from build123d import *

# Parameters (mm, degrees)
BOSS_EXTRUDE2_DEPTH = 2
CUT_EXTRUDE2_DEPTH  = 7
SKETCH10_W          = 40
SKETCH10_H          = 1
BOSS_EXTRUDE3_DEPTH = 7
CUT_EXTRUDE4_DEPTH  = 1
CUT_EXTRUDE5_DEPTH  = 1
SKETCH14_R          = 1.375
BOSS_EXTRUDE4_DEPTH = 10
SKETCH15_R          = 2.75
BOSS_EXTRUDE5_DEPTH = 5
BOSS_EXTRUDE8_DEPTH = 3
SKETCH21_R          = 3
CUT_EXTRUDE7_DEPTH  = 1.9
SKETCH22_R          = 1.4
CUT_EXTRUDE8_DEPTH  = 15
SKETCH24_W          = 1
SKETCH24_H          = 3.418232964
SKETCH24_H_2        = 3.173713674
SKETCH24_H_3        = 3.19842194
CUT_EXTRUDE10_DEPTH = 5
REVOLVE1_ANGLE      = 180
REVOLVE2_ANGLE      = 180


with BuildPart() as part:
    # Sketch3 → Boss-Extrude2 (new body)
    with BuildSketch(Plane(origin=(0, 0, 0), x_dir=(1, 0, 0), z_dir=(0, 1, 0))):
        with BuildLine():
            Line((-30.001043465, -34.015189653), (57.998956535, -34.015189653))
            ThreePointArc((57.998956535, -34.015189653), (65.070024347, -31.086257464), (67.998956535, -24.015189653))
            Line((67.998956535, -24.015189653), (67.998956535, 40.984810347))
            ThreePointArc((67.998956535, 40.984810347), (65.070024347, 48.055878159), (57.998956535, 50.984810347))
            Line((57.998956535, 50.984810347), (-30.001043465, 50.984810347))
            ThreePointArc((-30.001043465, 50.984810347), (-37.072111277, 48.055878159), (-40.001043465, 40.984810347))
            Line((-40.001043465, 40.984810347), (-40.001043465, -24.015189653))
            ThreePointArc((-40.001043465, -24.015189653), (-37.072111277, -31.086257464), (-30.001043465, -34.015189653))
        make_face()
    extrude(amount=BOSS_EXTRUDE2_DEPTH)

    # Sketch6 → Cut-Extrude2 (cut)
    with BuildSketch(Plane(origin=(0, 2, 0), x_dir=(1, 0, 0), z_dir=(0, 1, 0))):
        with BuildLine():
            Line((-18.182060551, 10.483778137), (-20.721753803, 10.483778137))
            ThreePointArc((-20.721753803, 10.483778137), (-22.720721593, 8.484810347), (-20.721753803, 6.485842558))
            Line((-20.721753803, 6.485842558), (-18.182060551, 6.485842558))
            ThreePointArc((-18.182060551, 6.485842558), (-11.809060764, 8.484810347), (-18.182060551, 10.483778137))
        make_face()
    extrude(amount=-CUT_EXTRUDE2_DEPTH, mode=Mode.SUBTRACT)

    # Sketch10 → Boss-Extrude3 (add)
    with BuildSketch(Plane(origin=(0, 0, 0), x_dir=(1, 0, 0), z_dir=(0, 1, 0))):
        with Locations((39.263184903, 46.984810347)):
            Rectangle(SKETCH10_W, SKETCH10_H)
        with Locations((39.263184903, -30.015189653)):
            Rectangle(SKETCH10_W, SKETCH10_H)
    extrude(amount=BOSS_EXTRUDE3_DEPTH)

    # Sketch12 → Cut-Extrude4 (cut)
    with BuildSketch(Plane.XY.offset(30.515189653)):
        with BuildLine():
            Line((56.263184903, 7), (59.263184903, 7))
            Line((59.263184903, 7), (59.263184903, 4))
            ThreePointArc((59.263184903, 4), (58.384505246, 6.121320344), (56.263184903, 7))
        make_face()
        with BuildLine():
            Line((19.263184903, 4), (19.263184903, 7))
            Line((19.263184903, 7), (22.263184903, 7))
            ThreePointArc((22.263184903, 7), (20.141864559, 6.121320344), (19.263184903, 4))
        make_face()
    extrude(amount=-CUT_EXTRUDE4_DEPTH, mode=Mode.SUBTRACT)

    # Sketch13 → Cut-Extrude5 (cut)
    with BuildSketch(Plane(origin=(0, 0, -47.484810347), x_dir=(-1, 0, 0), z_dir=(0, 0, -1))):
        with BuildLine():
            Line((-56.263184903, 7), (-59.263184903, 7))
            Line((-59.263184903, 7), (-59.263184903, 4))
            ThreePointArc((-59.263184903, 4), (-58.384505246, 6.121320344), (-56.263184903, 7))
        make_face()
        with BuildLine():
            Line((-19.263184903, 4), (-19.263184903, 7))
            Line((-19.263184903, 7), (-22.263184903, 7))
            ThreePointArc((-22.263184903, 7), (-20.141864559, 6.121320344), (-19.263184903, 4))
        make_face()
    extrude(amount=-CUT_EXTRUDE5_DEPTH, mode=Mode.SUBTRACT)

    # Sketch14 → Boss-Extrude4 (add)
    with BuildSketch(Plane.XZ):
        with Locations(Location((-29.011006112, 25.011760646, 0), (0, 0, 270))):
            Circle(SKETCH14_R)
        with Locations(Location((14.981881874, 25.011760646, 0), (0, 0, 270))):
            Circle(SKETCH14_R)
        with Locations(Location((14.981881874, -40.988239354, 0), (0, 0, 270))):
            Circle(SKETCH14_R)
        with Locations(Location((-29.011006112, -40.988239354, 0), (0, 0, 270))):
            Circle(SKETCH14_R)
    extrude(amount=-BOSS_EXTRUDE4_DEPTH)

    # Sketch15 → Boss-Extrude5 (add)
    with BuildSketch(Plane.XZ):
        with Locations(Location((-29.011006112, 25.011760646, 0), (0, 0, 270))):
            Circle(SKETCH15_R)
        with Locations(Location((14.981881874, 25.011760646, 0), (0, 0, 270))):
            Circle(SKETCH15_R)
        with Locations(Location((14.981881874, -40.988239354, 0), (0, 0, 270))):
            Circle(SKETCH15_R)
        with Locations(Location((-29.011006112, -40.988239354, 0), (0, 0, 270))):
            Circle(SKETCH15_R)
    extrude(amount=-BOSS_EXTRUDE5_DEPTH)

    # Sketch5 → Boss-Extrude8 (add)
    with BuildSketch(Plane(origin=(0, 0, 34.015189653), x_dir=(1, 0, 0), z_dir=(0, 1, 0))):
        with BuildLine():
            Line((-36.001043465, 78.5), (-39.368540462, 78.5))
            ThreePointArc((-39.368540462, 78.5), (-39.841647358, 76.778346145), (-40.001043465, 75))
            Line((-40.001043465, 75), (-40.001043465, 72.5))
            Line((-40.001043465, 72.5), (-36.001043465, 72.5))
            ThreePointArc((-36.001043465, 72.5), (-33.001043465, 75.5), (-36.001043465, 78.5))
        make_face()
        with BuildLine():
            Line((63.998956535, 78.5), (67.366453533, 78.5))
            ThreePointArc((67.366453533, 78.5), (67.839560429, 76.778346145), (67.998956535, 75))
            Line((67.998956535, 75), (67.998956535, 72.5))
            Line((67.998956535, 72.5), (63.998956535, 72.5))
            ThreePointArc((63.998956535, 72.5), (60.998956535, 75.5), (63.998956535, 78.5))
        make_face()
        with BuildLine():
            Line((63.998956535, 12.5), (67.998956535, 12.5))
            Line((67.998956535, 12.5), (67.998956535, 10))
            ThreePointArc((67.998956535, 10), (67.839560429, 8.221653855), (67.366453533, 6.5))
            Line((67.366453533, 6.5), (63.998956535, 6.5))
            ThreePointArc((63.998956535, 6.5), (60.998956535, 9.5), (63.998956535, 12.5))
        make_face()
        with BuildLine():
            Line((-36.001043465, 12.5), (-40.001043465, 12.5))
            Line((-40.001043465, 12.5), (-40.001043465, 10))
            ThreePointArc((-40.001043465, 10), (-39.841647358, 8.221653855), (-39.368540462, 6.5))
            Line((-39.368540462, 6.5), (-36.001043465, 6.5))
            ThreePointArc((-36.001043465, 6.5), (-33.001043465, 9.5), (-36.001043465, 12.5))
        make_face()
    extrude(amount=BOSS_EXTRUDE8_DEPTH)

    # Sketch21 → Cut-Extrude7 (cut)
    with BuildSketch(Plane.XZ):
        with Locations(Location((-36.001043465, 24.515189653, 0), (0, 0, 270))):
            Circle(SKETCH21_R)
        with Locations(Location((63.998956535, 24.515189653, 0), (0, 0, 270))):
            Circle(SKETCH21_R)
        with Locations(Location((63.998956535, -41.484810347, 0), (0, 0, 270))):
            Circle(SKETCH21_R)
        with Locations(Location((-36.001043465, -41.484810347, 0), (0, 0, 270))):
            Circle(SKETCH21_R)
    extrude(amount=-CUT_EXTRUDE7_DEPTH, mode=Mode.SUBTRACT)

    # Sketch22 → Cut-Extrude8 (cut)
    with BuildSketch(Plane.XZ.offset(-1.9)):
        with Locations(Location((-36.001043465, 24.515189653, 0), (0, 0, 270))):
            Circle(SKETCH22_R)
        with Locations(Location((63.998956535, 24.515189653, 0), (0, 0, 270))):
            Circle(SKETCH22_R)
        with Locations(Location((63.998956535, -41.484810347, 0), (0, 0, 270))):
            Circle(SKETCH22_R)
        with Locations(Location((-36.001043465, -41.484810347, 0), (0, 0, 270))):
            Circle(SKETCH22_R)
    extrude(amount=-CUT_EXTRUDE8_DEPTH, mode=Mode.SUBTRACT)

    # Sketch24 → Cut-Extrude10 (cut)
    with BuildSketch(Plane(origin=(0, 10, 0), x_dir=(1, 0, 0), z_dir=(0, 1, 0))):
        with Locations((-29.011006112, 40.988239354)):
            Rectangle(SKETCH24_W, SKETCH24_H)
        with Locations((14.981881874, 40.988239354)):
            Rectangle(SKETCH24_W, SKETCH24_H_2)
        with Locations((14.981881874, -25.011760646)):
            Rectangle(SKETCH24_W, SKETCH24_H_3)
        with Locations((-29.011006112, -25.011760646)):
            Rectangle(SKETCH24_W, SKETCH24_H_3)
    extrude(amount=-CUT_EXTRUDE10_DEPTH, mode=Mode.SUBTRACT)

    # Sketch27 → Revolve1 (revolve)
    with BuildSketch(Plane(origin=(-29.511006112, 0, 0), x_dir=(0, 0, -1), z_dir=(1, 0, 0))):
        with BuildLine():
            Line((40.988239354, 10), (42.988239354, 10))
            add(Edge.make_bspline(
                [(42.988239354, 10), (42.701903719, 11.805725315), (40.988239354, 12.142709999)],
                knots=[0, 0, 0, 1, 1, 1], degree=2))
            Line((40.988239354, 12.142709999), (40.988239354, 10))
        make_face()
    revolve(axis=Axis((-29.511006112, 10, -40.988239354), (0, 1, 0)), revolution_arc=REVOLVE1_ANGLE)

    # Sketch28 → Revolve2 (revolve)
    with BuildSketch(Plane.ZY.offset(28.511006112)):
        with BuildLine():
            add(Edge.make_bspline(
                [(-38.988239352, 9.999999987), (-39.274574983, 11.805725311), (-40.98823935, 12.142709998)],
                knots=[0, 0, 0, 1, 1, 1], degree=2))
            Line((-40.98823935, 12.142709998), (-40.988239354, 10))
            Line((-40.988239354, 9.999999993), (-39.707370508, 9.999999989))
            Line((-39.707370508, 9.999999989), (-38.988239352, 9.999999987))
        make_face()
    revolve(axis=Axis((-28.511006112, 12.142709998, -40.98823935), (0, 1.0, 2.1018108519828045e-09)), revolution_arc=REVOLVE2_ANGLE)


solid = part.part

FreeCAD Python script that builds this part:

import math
import FreeCAD as App
import Part
import Sketcher
from FreeCAD import Vector
Q = App.Units.Quantity


def add_polygon(sketch, points):
    """Adds a closed chain of lines whose ends are joined by coincident constraints."""
    first, n = sketch.GeometryCount, len(points)
    for a, b in zip(points, points[1:] + points[:1]):
        sketch.addGeometry(Part.LineSegment(App.Vector(*a, 0), App.Vector(*b, 0)), False)
    for i in range(n):
        sketch.addConstraint(Sketcher.Constraint("Coincident", first + i, 2, first + (i + 1) % n, 1))

doc = App.newDocument("Part")
params = doc.addObject("Spreadsheet::Sheet", "Params")
for row, (alias, value) in enumerate([
    ("sketch1_radius", "10 mm"),
    ("sketch1_width", "88 mm"),
    ("sketch1_height", "65 mm"),
    ("pad1_length", "2 mm"),
    ("sketch2_radius", "3.5 mm"),
    ("pocket1_length", "7 mm"),
    ("sketch3_width", "40 mm"),
    ("sketch3_height", "1 mm"),
    ("pad2_length", "7 mm"),
    ("sketch4_radius", "3 mm"),
    ("pocket2_length", "1 mm"),
    ("sketch5_radius", "3 mm"),
    ("pocket3_length", "1 mm"),
    ("sketch6_diameter", "2.75 mm"),
    ("pad3_length", "10 mm"),
    ("sketch7_diameter", "5.5 mm"),
    ("pad4_length", "5 mm"),
    ("sketch8_radius", "10 mm"),
    ("sketch8_radius2", "3 mm"),
    ("sketch8_width", "4 mm"),
    ("sketch8_height", "2.5 mm"),
    ("pad5_length", "3 mm"),
    ("sketch9_diameter", "6 mm"),
    ("pocket4_length", "1.9 mm"),
    ("sketch10_diameter", "2.8 mm"),
    ("pocket5_length", "15 mm"),
    ("sketch11_width", "1 mm"),
    ("pocket6_length", "5 mm"),
    ("revolution_angle", "180 deg"),
    ("revolution2_angle", "180 deg"),
], start=1):
    params.set(f"A{row}", alias)
    params.set(f"B{row}", "=" + value)
    params.setAlias(f"B{row}", alias)

body = doc.addObject("PartDesign::Body", "Body")

sketch1 = body.newObject("Sketcher::SketchObject", "Sketch")
sketch1.AttachmentSupport = (doc.getObject("XZ_Plane"), [""])
sketch1.MapMode = "FlatFace"
sketch1.addGeometry([
    Part.LineSegment(Vector(-30, 34, 0), Vector(58, 34, 0)),
    Part.ArcOfCircle(Part.Circle(Vector(58, 24, 0), Vector(0, 0, 1), 10), math.radians(0), math.radians(90)),
    Part.LineSegment(Vector(68, 24, 0), Vector(68, -41, 0)),
    Part.ArcOfCircle(Part.Circle(Vector(58, -41, 0), Vector(0, 0, 1), 10), math.radians(-90), math.radians(0)),
    Part.LineSegment(Vector(58, -51, 0), Vector(-30, -51, 0)),
    Part.ArcOfCircle(Part.Circle(Vector(-30, -41, 0), Vector(0, 0, 1), 10), math.radians(180), math.radians(270)),
    Part.LineSegment(Vector(-40, -41, 0), Vector(-40, 24, 0)),
    Part.ArcOfCircle(Part.Circle(Vector(-30, 24, 0), Vector(0, 0, 1), 10), math.radians(90), math.radians(180)),
], False)
sketch1.addConstraint([
    Sketcher.Constraint("Tangent", 0, 2, 1, 2),
    Sketcher.Constraint("Tangent", 1, 1, 2, 1),
    Sketcher.Constraint("Tangent", 2, 2, 3, 2),
    Sketcher.Constraint("Tangent", 3, 1, 4, 1),
    Sketcher.Constraint("Tangent", 4, 2, 5, 2),
    Sketcher.Constraint("Tangent", 5, 1, 6, 1),
    Sketcher.Constraint("Tangent", 6, 2, 7, 2),
    Sketcher.Constraint("Tangent", 7, 1, 0, 1),
    Sketcher.Constraint("Horizontal", 0),
    Sketcher.Constraint("Vertical", 2),
    Sketcher.Constraint("Horizontal", 4),
    Sketcher.Constraint("Vertical", 6),
    Sketcher.Constraint("Equal", 1, 3),
    Sketcher.Constraint("Equal", 3, 5),
    Sketcher.Constraint("Equal", 5, 7),
    Sketcher.Constraint("Radius", 1, Q("10 mm")),
    Sketcher.Constraint("DistanceX", 0, 1, 0, 2, Q("88 mm")),
    Sketcher.Constraint("DistanceY", 2, 2, 2, 1, Q("65 mm")),
    Sketcher.Constraint("DistanceY", -1, 1, 1, 3, Q("24.01519 mm")),
    Sketcher.Constraint("DistanceX", -1, 1, 1, 3, Q("57.998957 mm")),
])
sketch1.setExpression("Constraints[15]", "Params.sketch1_radius")
sketch1.setExpression("Constraints[16]", "Params.sketch1_width")
sketch1.setExpression("Constraints[17]", "Params.sketch1_height")
pad1 = body.newObject("PartDesign::Pad", "Pad")
pad1.Profile = sketch1
pad1.setExpression("Length", "Params.pad1_length")
pad1.Reversed = True

sketch2 = body.newObject("Sketcher::SketchObject", "Sketch001")
sketch2.AttachmentSupport = (doc.getObject("XZ_Plane"), [""])
sketch2.MapMode = "FlatFace"
sketch2.AttachmentOffset = App.Placement(Vector(0, 0, -2), App.Rotation())
sketch2.addGeometry([
    Part.LineSegment(Vector(-18.2, -10.5, 0), Vector(-20.7, -10.5, 0)),
    Part.ArcOfCircle(Part.Circle(Vector(-20.7, -8.5, 0), Vector(0, 0, 1), 2), math.radians(90), math.radians(270)),
    Part.LineSegment(Vector(-20.7, -6.5, 0), Vector(-18.2, -6.5, 0)),
    Part.ArcOfCircle(Part.Circle(Vector(-15.3, -8.5, 0), Vector(0, 0, 1), 3.5), math.radians(-145), math.radians(145)),
], False)
sketch2.addConstraint([
    Sketcher.Constraint("Tangent", 0, 2, 1, 2),
    Sketcher.Constraint("Tangent", 1, 1, 2, 1),
    Sketcher.Constraint("Coincident", 2, 2, 3, 2),
    Sketcher.Constraint("Coincident", 3, 1, 0, 1),
    Sketcher.Constraint("Horizontal", 0),
    Sketcher.Constraint("Horizontal", 2),
    Sketcher.Constraint("Horizontal", 1, 3, 3, 3),
    Sketcher.Constraint("Radius", 3, Q("3.5 mm")),
    Sketcher.Constraint("Radius", 1, Q("1.998968 mm")),
    Sketcher.Constraint("DistanceX", 0, 2, 0, 1, Q("2.539693 mm")),
    Sketcher.Constraint("DistanceY", 1, 3, -1, 1, Q("8.48481 mm")),
    Sketcher.Constraint("DistanceX", 3, 3, -1, 1, Q("15.309061 mm")),
])
sketch2.setExpression("Constraints[7]", "Params.sketch2_radius")
pocket1 = body.newObject("PartDesign::Pocket", "Pocket")
pocket1.Profile = sketch2
pocket1.setExpression("Length", "Params.pocket1_length")
pocket1.Reversed = True

sketch3 = body.newObject("Sketcher::SketchObject", "Sketch002")
sketch3.AttachmentSupport = (doc.getObject("XZ_Plane"), [""])
sketch3.MapMode = "FlatFace"
add_polygon(sketch3, [(19.3, -47.5), (19.3, -46.5), (59.3, -46.5), (59.3, -47.5)])
add_polygon(sketch3, [(19.3, 29.5), (19.3, 30.5), (59.3, 30.5), (59.3, 29.5)])
sketch3.addConstraint([
    Sketcher.Constraint("Vertical", 0),
    Sketcher.Constraint("Horizontal", 1),
    Sketcher.Constraint("Vertical", 2),
    Sketcher.Constraint("Horizontal", 3),
    Sketcher.Constraint("Vertical", 4),
    Sketcher.Constraint("Horizontal", 5),
    Sketcher.Constraint("Vertical", 6),
    Sketcher.Constraint("Horizontal", 7),
    Sketcher.Constraint("Vertical", 3, 2, 4, 2),
    Sketcher.Constraint("Vertical", 2, 2, 5, 2),
    Sketcher.Constraint("Equal", 2, 4),
    Sketcher.Constraint("DistanceX", 1, 1, 1, 2, Q("40 mm")),
    Sketcher.Constraint("DistanceY", 0, 1, 0, 2, Q("1 mm")),
    Sketcher.Constraint("DistanceY", 0, 2, 4, 2, Q("77 mm")),
    Sketcher.Constraint("DistanceY", 0, 2, -1, 1, Q("46.48481 mm")),
    Sketcher.Constraint("DistanceX", -1, 1, 0, 2, Q("19.263185 mm")),
])
sketch3.setExpression("Constraints[19]", "Params.sketch3_width")
sketch3.setExpression("Constraints[20]", "Params.sketch3_height")
pad2 = body.newObject("PartDesign::Pad", "Pad001")
pad2.Profile = sketch3
pad2.setExpression("Length", "Params.pad2_length")
pad2.Reversed = True

sketch4 = body.newObject("Sketcher::SketchObject", "Sketch003")
sketch4.AttachmentSupport = (doc.getObject("XY_Plane"), [""])
sketch4.MapMode = "FlatFace"
sketch4.AttachmentOffset = App.Placement(Vector(0, 0, 30.51519), App.Rotation())
sketch4.addGeometry([
    Part.LineSegment(Vector(59.3, 7, 0), Vector(56.3, 7, 0)),
    Part.ArcOfCircle(Part.Circle(Vector(56.3, 4, 0), Vector(0, 0, 1), 3), math.radians(0), math.radians(90)),
    Part.LineSegment(Vector(59.3, 4, 0), Vector(59.3, 7, 0)),
    Part.LineSegment(Vector(19.3, 7, 0), Vector(19.3, 4, 0)),
    Part.ArcOfCircle(Part.Circle(Vector(22.3, 4, 0), Vector(0, 0, 1), 3), math.radians(90), math.radians(180)),
    Part.LineSegment(Vector(22.3, 7, 0), Vector(19.3, 7, 0)),
], False)
sketch4.addConstraint([
    Sketcher.Constraint("Tangent", 0, 2, 1, 2),
    Sketcher.Constraint("Tangent", 1, 1, 2, 1),
    Sketcher.Constraint("Coincident", 2, 2, 0, 1),
    Sketcher.Constraint("Tangent", 3, 2, 4, 2),
    Sketcher.Constraint("Tangent", 4, 1, 5, 1),
    Sketcher.Constraint("Coincident", 5, 2, 3, 1),
    Sketcher.Constraint("Horizontal", 0),
    Sketcher.Constraint("Vertical", 2),
    Sketcher.Constraint("Vertical", 3),
    Sketcher.Constraint("Horizontal", 5),
    Sketcher.Constraint("Equal", 1, 4),
    Sketcher.Constraint("Horizontal", 1, 3, 4, 3),
    Sketcher.Constraint("Radius", 1, Q("3 mm")),
    Sketcher.Constraint("DistanceY", -1, 1, 1, 3, Q("4 mm")),
    Sketcher.Constraint("DistanceX", 4, 3, 1, 3, Q("34 mm")),
    Sketcher.Constraint("DistanceX", -1, 1, 1, 3, Q("56.263185 mm")),
])
sketch4.setExpression("Constraints[12]", "Params.sketch4_radius")
pocket2 = body.newObject("PartDesign::Pocket", "Pocket001")
pocket2.Profile = sketch4
pocket2.setExpression("Length", "Params.pocket2_length")

sketch5 = body.newObject("Sketcher::SketchObject", "Sketch004")
sketch5.AttachmentSupport = (doc.getObject("XY_Plane"), [""])
sketch5.MapMode = "FlatFace"
sketch5.AttachmentOffset = App.Placement(Vector(0, 0, -47.48481), App.Rotation())
sketch5.addGeometry([
    Part.LineSegment(Vector(56.3, 7, 0), Vector(59.3, 7, 0)),
    Part.LineSegment(Vector(59.3, 7, 0), Vector(59.3, 4, 0)),
    Part.ArcOfCircle(Part.Circle(Vector(56.3, 4, 0), Vector(0, 0, 1), 3), math.radians(0), math.radians(90)),
    Part.LineSegment(Vector(19.3, 4, 0), Vector(19.3, 7, 0)),
    Part.LineSegment(Vector(19.3, 7, 0), Vector(22.3, 7, 0)),
    Part.ArcOfCircle(Part.Circle(Vector(22.3, 4, 0), Vector(0, 0, 1), 3), math.radians(90), math.radians(180)),
], False)
sketch5.addConstraint([
    Sketcher.Constraint("Coincident", 0, 2, 1, 1),
    Sketcher.Constraint("Tangent", 1, 2, 2, 1),
    Sketcher.Constraint("Tangent", 2, 2, 0, 1),
    Sketcher.Constraint("Coincident", 3, 2, 4, 1),
    Sketcher.Constraint("Tangent", 4, 2, 5, 1),
    Sketcher.Constraint("Tangent", 5, 2, 3, 1),
    Sketcher.Constraint("Horizontal", 0),
    Sketcher.Constraint("Vertical", 1),
    Sketcher.Constraint("Vertical", 3),
    Sketcher.Constraint("Horizontal", 4),
    Sketcher.Constraint("Equal", 2, 5),
    Sketcher.Constraint("Horizontal", 2, 3, 5, 3),
    Sketcher.Constraint("Radius", 2, Q("3 mm")),
    Sketcher.Constraint("DistanceY", -1, 1, 2, 3, Q("4 mm")),
    Sketcher.Constraint("DistanceX", 5, 3, 2, 3, Q("34 mm")),
    Sketcher.Constraint("DistanceX", -1, 1, 2, 3, Q("56.263185 mm")),
])
sketch5.setExpression("Constraints[12]", "Params.sketch5_radius")
pocket3 = body.newObject("PartDesign::Pocket", "Pocket002")
pocket3.Profile = sketch5
pocket3.setExpression("Length", "Params.pocket3_length")
pocket3.Reversed = True

sketch6 = body.newObject("Sketcher::SketchObject", "Sketch005")
sketch6.AttachmentSupport = (doc.getObject("XZ_Plane"), [""])
sketch6.MapMode = "FlatFace"
sketch6.addGeometry([
    Part.Circle(Vector(-29, 25, 0), Vector(0, 0, 1), 1.4),
    Part.Circle(Vector(15, 25, 0), Vector(0, 0, 1), 1.4),
    Part.Circle(Vector(15, -41, 0), Vector(0, 0, 1), 1.4),
    Part.Circle(Vector(-29, -41, 0), Vector(0, 0, 1), 1.4),
], False)
sketch6.addConstraint([
    Sketcher.Constraint("Equal", 0, 1),
    Sketcher.Constraint("Equal", 1, 2),
    Sketcher.Constraint("Equal", 2, 3),
    Sketcher.Constraint("Horizontal", 0, 3, 1, 3),
    Sketcher.Constraint("Horizontal", 2, 3, 3, 3),
    Sketcher.Constraint("Vertical", 1, 3, 2, 3),
    Sketcher.Constraint("Vertical", 0, 3, 3, 3),
    Sketcher.Constraint("Diameter", 0, Q("2.75 mm")),
    Sketcher.Constraint("DistanceY", 2, 3, 1, 3, Q("66 mm")),
    Sketcher.Constraint("DistanceY", -1, 1, 0, 3, Q("25.011761 mm")),
    Sketcher.Constraint("DistanceX", -1, 1, 1, 3, Q("14.981882 mm")),
    Sketcher.Constraint("DistanceX", 0, 3, -1, 1, Q("29.011006 mm")),
])
sketch6.setExpression("Constraints[7]", "Params.sketch6_diameter")
pad3 = body.newObject("PartDesign::Pad", "Pad002")
pad3.Profile = sketch6
pad3.setExpression("Length", "Params.pad3_length")
pad3.Reversed = True

sketch7 = body.newObject("Sketcher::SketchObject", "Sketch006")
sketch7.AttachmentSupport = (doc.getObject("XZ_Plane"), [""])
sketch7.MapMode = "FlatFace"
sketch7.addGeometry([
    Part.Circle(Vector(-29, 25, 0), Vector(0, 0, 1), 2.8),
    Part.Circle(Vector(15, 25, 0), Vector(0, 0, 1), 2.8),
    Part.Circle(Vector(15, -41, 0), Vector(0, 0, 1), 2.8),
    Part.Circle(Vector(-29, -41, 0), Vector(0, 0, 1), 2.8),
], False)
sketch7.addConstraint([
    Sketcher.Constraint("Equal", 0, 1),
    Sketcher.Constraint("Equal", 1, 2),
    Sketcher.Constraint("Equal", 2, 3),
    Sketcher.Constraint("Horizontal", 0, 3, 1, 3),
    Sketcher.Constraint("Horizontal", 2, 3, 3, 3),
    Sketcher.Constraint("Vertical", 1, 3, 2, 3),
    Sketcher.Constraint("Vertical", 0, 3, 3, 3),
    Sketcher.Constraint("Diameter", 0, Q("5.5 mm")),
    Sketcher.Constraint("DistanceY", 2, 3, 1, 3, Q("66 mm")),
    Sketcher.Constraint("DistanceY", -1, 1, 0, 3, Q("25.011761 mm")),
    Sketcher.Constraint("DistanceX", -1, 1, 1, 3, Q("14.981882 mm")),
    Sketcher.Constraint("DistanceX", 0, 3, -1, 1, Q("29.011006 mm")),
])
sketch7.setExpression("Constraints[7]", "Params.sketch7_diameter")
pad4 = body.newObject("PartDesign::Pad", "Pad003")
pad4.Profile = sketch7
pad4.setExpression("Length", "Params.pad4_length")
pad4.Reversed = True

sketch8 = body.newObject("Sketcher::SketchObject", "Sketch007")
sketch8.AttachmentSupport = (doc.getObject("XZ_Plane"), [""])
sketch8.MapMode = "FlatFace"
sketch8.addGeometry([
    Part.LineSegment(Vector(-36, -44.5, 0), Vector(-39.4, -44.5, 0)),
    Part.ArcOfCircle(Part.Circle(Vector(-30, -41, 0), Vector(0, 0, 1), 10), math.radians(-180), math.radians(-160)),
    Part.LineSegment(Vector(-40, -41, 0), Vector(-40, -38.5, 0)),
    Part.LineSegment(Vector(-40, -38.5, 0), Vector(-36, -38.5, 0)),
    Part.ArcOfCircle(Part.Circle(Vector(-36, -41.5, 0), Vector(0, 0, 1), 3), math.radians(-90), math.radians(90)),
    Part.LineSegment(Vector(67.4, -44.5, 0), Vector(64, -44.5, 0)),
    Part.ArcOfCircle(Part.Circle(Vector(64, -41.5, 0), Vector(0, 0, 1), 3), math.radians(90), math.radians(270)),
    Part.LineSegment(Vector(64, -38.5, 0), Vector(68, -38.5, 0)),
    Part.LineSegment(Vector(68, -38.5, 0), Vector(68, -41, 0)),
    Part.ArcOfCircle(Part.Circle(Vector(58, -41, 0), Vector(0, 0, 1), 10), math.radians(-20), math.radians(0)),
    Part.LineSegment(Vector(68, 21.5, 0), Vector(64, 21.5, 0)),
    Part.ArcOfCircle(Part.Circle(Vector(64, 24.5, 0), Vector(0, 0, 1), 3), math.radians(90), math.radians(270)),
    Part.LineSegment(Vector(64, 27.5, 0), Vector(67.4, 27.5, 0)),
    Part.ArcOfCircle(Part.Circle(Vector(58, 24, 0), Vector(0, 0, 1), 10), math.radians(0), math.radians(20)),
    Part.LineSegment(Vector(68, 24, 0), Vector(68, 21.5, 0)),
    Part.LineSegment(Vector(-36, 21.5, 0), Vector(-40, 21.5, 0)),
    Part.LineSegment(Vector(-40, 21.5, 0), Vector(-40, 24, 0)),
    Part.ArcOfCircle(Part.Circle(Vector(-30, 24, 0), Vector(0, 0, 1), 10), math.radians(160), math.radians(180)),
    Part.LineSegment(Vector(-39.4, 27.5, 0), Vector(-36, 27.5, 0)),
    Part.ArcOfCircle(Part.Circle(Vector(-36, 24.5, 0), Vector(0, 0, 1), 3), math.radians(-90), math.radians(90)),
], False)
sketch8.addConstraint([
    Sketcher.Constraint("Coincident", 0, 2, 1, 2),
    Sketcher.Constraint("Tangent", 1, 1, 2, 1),
    Sketcher.Constraint("Coincident", 2, 2, 3, 1),
    Sketcher.Constraint("Tangent", 3, 2, 4, 2),
    Sketcher.Constraint("Tangent", 4, 1, 0, 1),
    Sketcher.Constraint("Tangent", 5, 2, 6, 2),
    Sketcher.Constraint("Tangent", 6, 1, 7, 1),
    Sketcher.Constraint("Coincident", 7, 2, 8, 1),
    Sketcher.Constraint("Tangent", 8, 2, 9, 2),
    Sketcher.Constraint("Coincident", 9, 1, 5, 1),
    Sketcher.Constraint("Tangent", 10, 2, 11, 2),
    Sketcher.Constraint("Tangent", 11, 1, 12, 1),
    Sketcher.Constraint("Coincident", 12, 2, 13, 2),
    Sketcher.Constraint("Tangent", 13, 1, 14, 1),
    Sketcher.Constraint("Coincident", 14, 2, 10, 1),
    Sketcher.Constraint("Coincident", 15, 2, 16, 1),
    Sketcher.Constraint("Tangent", 16, 2, 17, 2),
    Sketcher.Constraint("Coincident", 17, 1, 18, 1),
    Sketcher.Constraint("Tangent", 18, 2, 19, 2),
    Sketcher.Constraint("Tangent", 19, 1, 15, 1),
    Sketcher.Constraint("Horizontal", 0),
    Sketcher.Constraint("Vertical", 2),
    Sketcher.Constraint("Horizontal", 3),
    Sketcher.Constraint("Horizontal", 5),
    Sketcher.Constraint("Horizontal", 7),
    Sketcher.Constraint("Vertical", 8),
    Sketcher.Constraint("Horizontal", 10),
    Sketcher.Constraint("Horizontal", 12),
    Sketcher.Constraint("Vertical", 14),
    Sketcher.Constraint("Horizontal", 15),
    Sketcher.Constraint("Vertical", 16),
    Sketcher.Constraint("Horizontal", 18),
    Sketcher.Constraint("Equal", 4, 6),
    Sketcher.Constraint("Equal", 1, 9),
    Sketcher.Constraint("Equal", 6, 11),
    Sketcher.Constraint("Equal", 9, 13),
    Sketcher.Constraint("Equal", 13, 17),
    Sketcher.Constraint("Equal", 11, 19),
    Sketcher.Constraint("Horizontal", 4, 3, 6, 3),
    Sketcher.Constraint("Horizontal", 1, 3, 9, 3),
    Sketcher.Constraint("Horizontal", 13, 3, 17, 3),
    Sketcher.Constraint("Horizontal", 11, 3, 19, 3),
    Sketcher.Constraint("Vertical", 6, 3, 11, 3),
    Sketcher.Constraint("Vertical", 9, 3, 13, 3),
    Sketcher.Constraint("Vertical", 1, 3, 17, 3),
    Sketcher.Constraint("Vertical", 4, 3, 19, 3),
    Sketcher.Constraint("Vertical", 9, 1, 12, 2),
    Sketcher.Constraint("Equal", 0, 5),
    Sketcher.Constraint("Radius", 1, Q("10 mm")),
    Sketcher.Constraint("Radius", 4, Q("3 mm")),
    Sketcher.Constraint("DistanceX", 3, 1, 3, 2, Q("4 mm")),
    Sketcher.Constraint("DistanceY", 2, 1, 2, 2, Q("2.5 mm")),
    Sketcher.Constraint("DistanceX", 1, 3, 6, 3, Q("94 mm")),
    Sketcher.Constraint("DistanceY", 6, 3, 11, 3, Q("66 mm")),
    Sketcher.Constraint("DistanceY", 1, 3, -1, 1, Q("40.98481 mm")),
    Sketcher.Constraint("DistanceX", 0, 2, -1, 1, Q("39.36854 mm")),
])
sketch8.setExpression("Constraints[48]", "Params.sketch8_radius")
sketch8.setExpression("Constraints[49]", "Params.sketch8_radius2")
sketch8.setExpression("Constraints[50]", "Params.sketch8_width")
sketch8.setExpression("Constraints[51]", "Params.sketch8_height")
pad5 = body.newObject("PartDesign::Pad", "Pad004")
pad5.Profile = sketch8
pad5.setExpression("Length", "Params.pad5_length")
pad5.Reversed = True

sketch9 = body.newObject("Sketcher::SketchObject", "Sketch008")
sketch9.AttachmentSupport = (doc.getObject("XZ_Plane"), [""])
sketch9.MapMode = "FlatFace"
sketch9.addGeometry([
    Part.Circle(Vector(-36, 24.5, 0), Vector(0, 0, 1), 3),
    Part.Circle(Vector(64, 24.5, 0), Vector(0, 0, 1), 3),
    Part.Circle(Vector(64, -41.5, 0), Vector(0, 0, 1), 3),
    Part.Circle(Vector(-36, -41.5, 0), Vector(0, 0, 1), 3),
], False)
sketch9.addConstraint([
    Sketcher.Constraint("Equal", 0, 1),
    Sketcher.Constraint("Equal", 1, 2),
    Sketcher.Constraint("Equal", 2, 3),
    Sketcher.Constraint("Horizontal", 0, 3, 1, 3),
    Sketcher.Constraint("Horizontal", 2, 3, 3, 3),
    Sketcher.Constraint("Vertical", 1, 3, 2, 3),
    Sketcher.Constraint("Vertical", 0, 3, 3, 3),
    Sketcher.Constraint("Diameter", 0, Q("6 mm")),
    Sketcher.Constraint("DistanceX", 0, 3, 1, 3, Q("100 mm")),
    Sketcher.Constraint("DistanceY", 2, 3, 1, 3, Q("66 mm")),
    Sketcher.Constraint("DistanceY", -1, 1, 0, 3, Q("24.51519 mm")),
    Sketcher.Constraint("DistanceX", 0, 3, -1, 1, Q("36.001043 mm")),
])
sketch9.setExpression("Constraints[7]", "Params.sketch9_diameter")
pocket4 = body.newObject("PartDesign::Pocket", "Pocket003")
pocket4.Profile = sketch9
pocket4.setExpression("Length", "Params.pocket4_length")

sketch10 = body.newObject("Sketcher::SketchObject", "Sketch009")
sketch10.AttachmentSupport = (doc.getObject("XZ_Plane"), [""])
sketch10.MapMode = "FlatFace"
sketch10.AttachmentOffset = App.Placement(Vector(0, 0, -1.9), App.Rotation())
sketch10.addGeometry([
    Part.Circle(Vector(-36, 24.5, 0), Vector(0, 0, 1), 1.4),
    Part.Circle(Vector(64, 24.5, 0), Vector(0, 0, 1), 1.4),
    Part.Circle(Vector(64, -41.5, 0), Vector(0, 0, 1), 1.4),
    Part.Circle(Vector(-36, -41.5, 0), Vector(0, 0, 1), 1.4),
], False)
sketch10.addConstraint([
    Sketcher.Constraint("Equal", 0, 1),
    Sketcher.Constraint("Equal", 1, 2),
    Sketcher.Constraint("Equal", 2, 3),
    Sketcher.Constraint("Horizontal", 0, 3, 1, 3),
    Sketcher.Constraint("Horizontal", 2, 3, 3, 3),
    Sketcher.Constraint("Vertical", 1, 3, 2, 3),
    Sketcher.Constraint("Vertical", 0, 3, 3, 3),
    Sketcher.Constraint("Diameter", 0, Q("2.8 mm")),
    Sketcher.Constraint("DistanceX", 0, 3, 1, 3, Q("100 mm")),
    Sketcher.Constraint("DistanceY", 2, 3, 1, 3, Q("66 mm")),
    Sketcher.Constraint("DistanceY", -1, 1, 0, 3, Q("24.51519 mm")),
    Sketcher.Constraint("DistanceX", 0, 3, -1, 1, Q("36.001043 mm")),
])
sketch10.setExpression("Constraints[7]", "Params.sketch10_diameter")
pocket5 = body.newObject("PartDesign::Pocket", "Pocket004")
pocket5.Profile = sketch10
pocket5.setExpression("Length", "Params.pocket5_length")

sketch11 = body.newObject("Sketcher::SketchObject", "Sketch010")
sketch11.AttachmentSupport = (doc.getObject("XZ_Plane"), [""])
sketch11.MapMode = "FlatFace"
sketch11.AttachmentOffset = App.Placement(Vector(0, 0, -10), App.Rotation())
add_polygon(sketch11, [(-29.5, -42.7), (-29.5, -39.3), (-28.5, -39.3), (-28.5, -42.7)])
add_polygon(sketch11, [(14.5, -42.6), (14.5, -39.4), (15.5, -39.4), (15.5, -42.6)])
add_polygon(sketch11, [(14.5, 23.4), (14.5, 26.6), (15.5, 26.6), (15.5, 23.4)])
add_polygon(sketch11, [(-29.5, 23.4), (-29.5, 26.6), (-28.5, 26.6), (-28.5, 23.4)])
sketch11.addConstraint([
    Sketcher.Constraint("Vertical", 0),
    Sketcher.Constraint("Horizontal", 1),
    Sketcher.Constraint("Vertical", 2),
    Sketcher.Constraint("Horizontal", 3),
    Sketcher.Constraint("Vertical", 4),
    Sketcher.Constraint("Horizontal", 5),
    Sketcher.Constraint("Vertical", 6),
    Sketcher.Constraint("Horizontal", 7),
    Sketcher.Constraint("Vertical", 8),
    Sketcher.Constraint("Horizontal", 9),
    Sketcher.Constraint("Vertical", 10),
    Sketcher.Constraint("Horizontal", 11),
    Sketcher.Constraint("Vertical", 12),
    Sketcher.Constraint("Horizontal", 13),
    Sketcher.Constraint("Vertical", 14),
    Sketcher.Constraint("Horizontal", 15),
    Sketcher.Constraint("Horizontal", 9, 2, 12, 2),
    Sketcher.Constraint("Horizontal", 11, 2, 14, 2),
    Sketcher.Constraint("Vertical", 7, 2, 8, 2),
    Sketcher.Constraint("Vertical", 6, 2, 9, 2),
    Sketcher.Constraint("Vertical", 3, 2, 12, 2),
    Sketcher.Constraint("Vertical", 2, 2, 13, 2),
    Sketcher.Constraint("Equal", 3, 5),
    Sketcher.Constraint("DistanceX", 1, 1, 1, 2, Q("1 mm")),
    Sketcher.Constraint("DistanceY", 8, 1, 8, 2, Q("3.198422 mm")),
    Sketcher.Constraint("DistanceY", 0, 1, 0, 2, Q("3.418233 mm")),
    Sketcher.Constraint("DistanceY", 4, 1, 4, 2, Q("3.173714 mm")),
    Sketcher.Constraint("DistanceX", -1, 1, 4, 2, Q("14.481882 mm")),
    Sketcher.Constraint("DistanceY", -1, 1, 8, 2, Q("26.610972 mm")),
    Sketcher.Constraint("DistanceY", 4, 2, 1, 2, Q("0.12226 mm")),
    Sketcher.Constraint("DistanceX", 0, 2, -1, 1, Q("29.511006 mm")),
    Sketcher.Constraint("DistanceY", 0, 2, -1, 1, Q("39.279123 mm")),
])
sketch11.setExpression("Constraints[39]", "Params.sketch11_width")
pocket6 = body.newObject("PartDesign::Pocket", "Pocket005")
pocket6.Profile = sketch11
pocket6.setExpression("Length", "Params.pocket6_length")
pocket6.Reversed = True

sketch12 = body.newObject("Sketcher::SketchObject", "Sketch011")
sketch12.AttachmentSupport = (doc.getObject("YZ_Plane"), [""])
sketch12.MapMode = "FlatFace"
sketch12.AttachmentOffset = App.Placement(Vector(0, 0, -29.511006), App.Rotation())
sketch12.addGeometry([
    Part.LineSegment(Vector(10, -40.988239, 0), Vector(10, -42.988239, 0)),
    Part.BSplineCurve([Vector(10, -42.988239, 0), Vector(11.805725, -42.701904, 0), Vector(12.14271, -40.988239, 0)], [3, 3], [0, 1], False, 2, [1, 1, 1], False),
    Part.LineSegment(Vector(12.14271, -40.988239, 0), Vector(10, -40.988239, 0)),
], False)
sketch12.addGeometry(Part.LineSegment(Vector(10, -40.988239, 0), Vector(12.14271, -40.988239, 0)), True)
sketch12.addConstraint([
    Sketcher.Constraint("Block", 1),
    Sketcher.Constraint("Coincident", 0, 2, 1, 1),
    Sketcher.Constraint("Coincident", 1, 2, 2, 1),
    Sketcher.Constraint("Coincident", 2, 2, 0, 1),
    Sketcher.Constraint("Vertical", 0),
    Sketcher.Constraint("Horizontal", 2),
    Sketcher.Constraint("Horizontal", 3),
    Sketcher.Constraint("Coincident", 3, 1, 2, 2),
    Sketcher.Constraint("Equal", 2, 3),
])
revolution = body.newObject("PartDesign::Revolution", "Revolution")
revolution.Profile = sketch12
revolution.ReferenceAxis = (sketch12, ["Axis0"])
revolution.setExpression("Angle", "Params.revolution_angle")

sketch13 = body.newObject("Sketcher::SketchObject", "Sketch012")
sketch13.AttachmentSupport = (doc.getObject("YZ_Plane"), [""])
sketch13.MapMode = "FlatFace"
sketch13.AttachmentOffset = App.Placement(Vector(0, 0, -28.511006), App.Rotation())
sketch13.addGeometry([
    Part.BSplineCurve([Vector(10, -38.988239, 0), Vector(11.805725, -39.274575, 0), Vector(12.14271, -40.988239, 0)], [3, 3], [0, 1], False, 2, [1, 1, 1], False),
    Part.LineSegment(Vector(12.14271, -40.988239, 0), Vector(10, -40.988239, 0)),
    Part.LineSegment(Vector(10, -40.988239, 0), Vector(10, -39.707371, 0)),
    Part.LineSegment(Vector(10, -39.707371, 0), Vector(10, -38.988239, 0)),
], False)
sketch13.addGeometry(Part.LineSegment(Vector(10, -40.988239, 0), Vector(12.14271, -40.988239, 0)), True)
sketch13.addConstraint([
    Sketcher.Constraint("Block", 0),
    Sketcher.Constraint("Coincident", 0, 2, 1, 1),
    Sketcher.Constraint("Coincident", 1, 2, 2, 1),
    Sketcher.Constraint("Coincident", 2, 2, 3, 1),
    Sketcher.Constraint("Coincident", 3, 2, 0, 1),
    Sketcher.Constraint("Horizontal", 1),
    Sketcher.Constraint("Vertical", 2),
    Sketcher.Constraint("Vertical", 3),
    Sketcher.Constraint("Horizontal", 4),
    Sketcher.Constraint("Coincident", 4, 1, 1, 2),
    Sketcher.Constraint("Equal", 1, 4),
    Sketcher.Constraint("DistanceY", 2, 1, 2, 2, Q("1.280869 mm")),
])
revolution2 = body.newObject("PartDesign::Revolution", "Revolution001")
revolution2.Profile = sketch13
revolution2.ReferenceAxis = (sketch13, ["Axis0"])
revolution2.setExpression("Angle", "Params.revolution2_angle")

doc.recompute()
